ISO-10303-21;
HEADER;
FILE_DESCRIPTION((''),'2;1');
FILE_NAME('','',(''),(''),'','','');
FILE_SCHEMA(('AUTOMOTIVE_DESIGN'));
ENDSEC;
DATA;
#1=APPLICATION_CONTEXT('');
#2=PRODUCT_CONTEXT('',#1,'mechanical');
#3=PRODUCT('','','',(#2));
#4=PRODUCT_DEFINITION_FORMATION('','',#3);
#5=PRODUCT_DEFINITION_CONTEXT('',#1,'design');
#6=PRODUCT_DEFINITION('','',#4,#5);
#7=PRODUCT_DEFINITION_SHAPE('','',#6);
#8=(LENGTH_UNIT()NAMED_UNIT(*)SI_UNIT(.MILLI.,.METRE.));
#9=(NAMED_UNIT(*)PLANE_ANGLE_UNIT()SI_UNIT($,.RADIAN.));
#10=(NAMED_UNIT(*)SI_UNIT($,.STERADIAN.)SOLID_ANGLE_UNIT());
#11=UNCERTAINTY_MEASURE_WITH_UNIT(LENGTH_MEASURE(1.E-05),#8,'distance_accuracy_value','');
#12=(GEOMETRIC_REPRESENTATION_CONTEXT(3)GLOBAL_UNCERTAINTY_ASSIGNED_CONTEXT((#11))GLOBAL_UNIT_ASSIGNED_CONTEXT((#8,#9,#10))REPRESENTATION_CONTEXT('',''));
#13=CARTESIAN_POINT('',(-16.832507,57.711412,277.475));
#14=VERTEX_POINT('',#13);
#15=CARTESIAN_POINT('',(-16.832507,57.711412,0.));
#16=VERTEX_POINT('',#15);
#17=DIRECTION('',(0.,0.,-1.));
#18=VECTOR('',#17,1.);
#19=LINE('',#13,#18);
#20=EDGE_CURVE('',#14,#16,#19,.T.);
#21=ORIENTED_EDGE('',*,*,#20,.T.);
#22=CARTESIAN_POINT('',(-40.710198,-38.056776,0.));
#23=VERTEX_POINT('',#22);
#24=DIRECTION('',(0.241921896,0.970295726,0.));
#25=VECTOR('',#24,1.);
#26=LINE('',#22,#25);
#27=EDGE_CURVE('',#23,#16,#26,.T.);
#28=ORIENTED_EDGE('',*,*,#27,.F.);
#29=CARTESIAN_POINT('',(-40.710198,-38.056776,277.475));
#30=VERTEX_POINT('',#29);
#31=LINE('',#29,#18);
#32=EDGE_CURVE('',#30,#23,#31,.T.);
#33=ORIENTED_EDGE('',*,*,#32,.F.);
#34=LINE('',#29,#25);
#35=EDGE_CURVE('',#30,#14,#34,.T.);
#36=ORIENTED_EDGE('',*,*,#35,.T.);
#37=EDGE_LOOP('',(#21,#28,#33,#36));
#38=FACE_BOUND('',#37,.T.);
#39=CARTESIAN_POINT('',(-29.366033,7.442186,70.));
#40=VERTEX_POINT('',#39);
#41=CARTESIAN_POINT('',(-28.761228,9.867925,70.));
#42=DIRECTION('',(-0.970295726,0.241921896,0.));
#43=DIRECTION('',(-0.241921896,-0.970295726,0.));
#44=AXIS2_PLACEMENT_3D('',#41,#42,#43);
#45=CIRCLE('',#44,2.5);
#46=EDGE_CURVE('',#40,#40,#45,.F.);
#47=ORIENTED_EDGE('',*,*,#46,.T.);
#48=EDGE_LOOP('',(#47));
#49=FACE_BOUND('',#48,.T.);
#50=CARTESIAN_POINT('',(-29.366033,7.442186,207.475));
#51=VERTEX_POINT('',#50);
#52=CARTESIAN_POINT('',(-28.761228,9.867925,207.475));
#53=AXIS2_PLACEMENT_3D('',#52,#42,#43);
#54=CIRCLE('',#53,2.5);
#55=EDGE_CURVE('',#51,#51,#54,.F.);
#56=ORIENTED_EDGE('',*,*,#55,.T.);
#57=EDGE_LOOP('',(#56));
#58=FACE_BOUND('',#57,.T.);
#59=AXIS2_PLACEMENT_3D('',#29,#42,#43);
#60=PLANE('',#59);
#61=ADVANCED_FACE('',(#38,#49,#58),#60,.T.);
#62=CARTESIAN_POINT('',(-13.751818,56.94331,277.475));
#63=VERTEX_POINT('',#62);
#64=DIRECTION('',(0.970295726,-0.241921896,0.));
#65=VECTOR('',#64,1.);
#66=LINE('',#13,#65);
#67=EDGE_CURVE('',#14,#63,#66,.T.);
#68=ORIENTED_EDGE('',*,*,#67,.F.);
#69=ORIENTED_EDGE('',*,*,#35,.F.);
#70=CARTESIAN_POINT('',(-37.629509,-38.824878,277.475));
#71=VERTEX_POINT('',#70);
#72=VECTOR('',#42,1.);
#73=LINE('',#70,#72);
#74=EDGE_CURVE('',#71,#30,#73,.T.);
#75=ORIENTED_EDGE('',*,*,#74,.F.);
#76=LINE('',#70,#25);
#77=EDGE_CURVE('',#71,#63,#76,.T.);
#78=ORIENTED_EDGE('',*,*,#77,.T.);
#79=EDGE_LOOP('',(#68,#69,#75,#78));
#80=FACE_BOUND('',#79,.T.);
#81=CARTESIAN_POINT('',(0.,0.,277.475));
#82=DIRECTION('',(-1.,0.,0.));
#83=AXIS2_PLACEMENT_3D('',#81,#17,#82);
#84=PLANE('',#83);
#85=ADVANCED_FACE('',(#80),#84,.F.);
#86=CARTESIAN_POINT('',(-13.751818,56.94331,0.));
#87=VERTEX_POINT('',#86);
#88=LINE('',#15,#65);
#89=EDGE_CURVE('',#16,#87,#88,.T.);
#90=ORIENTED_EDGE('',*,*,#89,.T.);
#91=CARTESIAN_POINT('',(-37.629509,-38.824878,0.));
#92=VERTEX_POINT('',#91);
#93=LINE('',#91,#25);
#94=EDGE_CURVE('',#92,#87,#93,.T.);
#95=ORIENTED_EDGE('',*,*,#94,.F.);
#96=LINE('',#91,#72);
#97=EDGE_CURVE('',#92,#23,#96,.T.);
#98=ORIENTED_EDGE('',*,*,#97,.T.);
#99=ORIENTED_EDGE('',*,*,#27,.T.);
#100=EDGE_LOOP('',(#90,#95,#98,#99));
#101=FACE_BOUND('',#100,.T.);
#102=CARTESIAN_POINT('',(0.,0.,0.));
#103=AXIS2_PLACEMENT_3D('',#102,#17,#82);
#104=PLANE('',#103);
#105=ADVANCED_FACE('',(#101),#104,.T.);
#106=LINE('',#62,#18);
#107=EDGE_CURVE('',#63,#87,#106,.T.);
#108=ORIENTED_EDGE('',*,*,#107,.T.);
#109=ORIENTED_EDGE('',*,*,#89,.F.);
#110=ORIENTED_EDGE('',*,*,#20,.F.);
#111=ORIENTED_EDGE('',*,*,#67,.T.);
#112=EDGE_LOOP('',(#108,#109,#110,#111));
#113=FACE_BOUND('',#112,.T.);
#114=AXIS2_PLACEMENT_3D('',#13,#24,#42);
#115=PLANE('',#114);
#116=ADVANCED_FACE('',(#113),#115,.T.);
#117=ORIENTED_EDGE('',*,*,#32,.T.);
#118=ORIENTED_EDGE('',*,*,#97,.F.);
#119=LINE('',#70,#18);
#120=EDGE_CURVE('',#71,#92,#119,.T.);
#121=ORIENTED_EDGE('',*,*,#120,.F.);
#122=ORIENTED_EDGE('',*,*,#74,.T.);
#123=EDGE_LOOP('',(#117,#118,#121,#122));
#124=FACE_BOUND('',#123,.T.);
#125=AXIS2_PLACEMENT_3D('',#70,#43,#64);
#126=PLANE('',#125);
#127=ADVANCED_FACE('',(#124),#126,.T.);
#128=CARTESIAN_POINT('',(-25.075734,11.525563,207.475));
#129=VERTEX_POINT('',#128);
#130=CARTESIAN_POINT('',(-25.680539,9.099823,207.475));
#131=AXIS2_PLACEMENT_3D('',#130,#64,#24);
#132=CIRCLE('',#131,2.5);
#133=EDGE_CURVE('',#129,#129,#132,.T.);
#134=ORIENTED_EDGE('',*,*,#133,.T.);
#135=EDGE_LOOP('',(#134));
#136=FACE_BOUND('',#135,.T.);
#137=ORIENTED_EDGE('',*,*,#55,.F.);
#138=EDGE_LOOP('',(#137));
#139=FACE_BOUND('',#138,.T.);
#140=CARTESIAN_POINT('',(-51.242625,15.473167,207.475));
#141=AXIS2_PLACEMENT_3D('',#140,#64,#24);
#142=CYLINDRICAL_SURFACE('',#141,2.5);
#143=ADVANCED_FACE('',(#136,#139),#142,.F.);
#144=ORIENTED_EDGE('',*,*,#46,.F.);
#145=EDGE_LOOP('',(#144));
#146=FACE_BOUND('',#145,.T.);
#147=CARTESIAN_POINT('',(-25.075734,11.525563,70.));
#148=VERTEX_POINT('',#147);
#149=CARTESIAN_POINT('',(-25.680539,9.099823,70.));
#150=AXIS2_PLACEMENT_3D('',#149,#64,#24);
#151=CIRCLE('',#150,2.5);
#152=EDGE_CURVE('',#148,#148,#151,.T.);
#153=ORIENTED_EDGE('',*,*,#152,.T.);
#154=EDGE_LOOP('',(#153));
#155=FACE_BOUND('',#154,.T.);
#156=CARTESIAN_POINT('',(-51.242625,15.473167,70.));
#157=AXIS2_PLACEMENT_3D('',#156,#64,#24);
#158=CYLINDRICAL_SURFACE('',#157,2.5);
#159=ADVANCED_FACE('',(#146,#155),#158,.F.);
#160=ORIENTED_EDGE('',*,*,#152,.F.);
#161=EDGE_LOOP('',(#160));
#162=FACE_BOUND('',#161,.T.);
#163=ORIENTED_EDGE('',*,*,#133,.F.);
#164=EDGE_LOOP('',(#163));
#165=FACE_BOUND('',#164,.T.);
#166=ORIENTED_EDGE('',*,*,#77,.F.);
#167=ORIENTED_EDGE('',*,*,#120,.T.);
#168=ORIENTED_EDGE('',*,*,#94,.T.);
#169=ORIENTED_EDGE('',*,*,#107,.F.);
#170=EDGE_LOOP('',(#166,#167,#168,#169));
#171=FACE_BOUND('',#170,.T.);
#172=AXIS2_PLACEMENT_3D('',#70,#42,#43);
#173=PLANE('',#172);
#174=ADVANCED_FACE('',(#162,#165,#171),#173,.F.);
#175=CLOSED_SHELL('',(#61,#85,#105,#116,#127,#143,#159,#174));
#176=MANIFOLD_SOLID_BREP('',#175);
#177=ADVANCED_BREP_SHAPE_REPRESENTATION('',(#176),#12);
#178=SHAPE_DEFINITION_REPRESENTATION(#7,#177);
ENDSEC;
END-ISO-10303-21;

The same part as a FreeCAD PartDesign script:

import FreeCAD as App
import Part
import Sketcher
from FreeCAD import Vector
Q = App.Units.Quantity


def add_polygon(sketch, points):
    """Adds a closed chain of lines whose ends are joined by coincident constraints."""
    first, n = sketch.GeometryCount, len(points)
    for a, b in zip(points, points[1:] + points[:1]):
        sketch.addGeometry(Part.LineSegment(App.Vector(*a, 0), App.Vector(*b, 0)), False)
    for i in range(n):
        sketch.addConstraint(Sketcher.Constraint("Coincident", first + i, 2, first + (i + 1) % n, 1))

doc = App.newDocument("Part")
body = doc.addObject("PartDesign::Body", "Body")

# Sketch on XY plane
sketch1 = doc.addObject("Sketcher::SketchObject", "Sketch")
body.addObject(sketch1)
sketch1.AttachmentSupport = (doc.XY_Plane, [""])
sketch1.MapMode = "FlatFace"
add_polygon(sketch1, [(-37.6, -38.8), (-13.8, 56.9), (-16.8, 57.7), (-40.7, -38.1)])  # lines 0-3
sketch1.addConstraint([
    Sketcher.Constraint("Perpendicular", 0, 1),
    Sketcher.Constraint("Perpendicular", 1, 2),
    Sketcher.Constraint("Perpendicular", 2, 3),
    Sketcher.Constraint("Angle", 0, Q("76 deg")),
    Sketcher.Constraint("Distance", 0, 98.7),
    Sketcher.Constraint("Distance", 1, 3.175),
    Sketcher.Constraint("DistanceY", -1, 1, 0, 2, 56.94331),
    Sketcher.Constraint("DistanceX", 3, 2, -1, 1, 37.629509),
])
pad1 = doc.addObject("PartDesign::Pad", "Pad")
body.addObject(pad1)
pad1.Profile = sketch1
pad1.Length = 277.475

# Sketch on an angled plane
sketch2 = doc.addObject("Sketcher::SketchObject", "Sketch001")
body.addObject(sketch2)
sketch2.Placement = App.Placement(Vector(-26.313609, 6.560719, 0), App.Rotation(Vector(0, 0, -1), Vector(0.241921896, 0.970295726, 0), Vector(0.970295726, -0.241921896, 0), "ZXY"))
sketch2.addGeometry(Part.Circle(Vector(-207.5, 2.6, 0), Vector(0, 0, 1), 2.5), False)
sketch2.addConstraint([
    Sketcher.Constraint("Diameter", 0, 5.0),
    Sketcher.Constraint("DistanceX", 0, 3, -1, 1, 207.475),
    Sketcher.Constraint("DistanceY", -1, 1, 0, 3, 2.616835),
])
pocket1 = doc.addObject("PartDesign::Pocket", "Pocket")
body.addObject(pocket1)
pocket1.Profile = sketch2
pocket1.Type = "UpToFirst"

# Sketch on an angled plane
sketch3 = doc.addObject("Sketcher::SketchObject", "Sketch002")
body.addObject(sketch3)
sketch3.Placement = App.Placement(Vector(-26.313609, 6.560719, 0), App.Rotation(Vector(0, 0, -1), Vector(0.241921896, 0.970295726, 0), Vector(0.970295726, -0.241921896, 0), "ZXY"))
sketch3.addGeometry(Part.Circle(Vector(-70, 2.6, 0), Vector(0, 0, 1), 2.5), False)
sketch3.addConstraint([
    Sketcher.Constraint("Diameter", 0, 5.0),
    Sketcher.Constraint("DistanceX", 0, 3, -1, 1, 70.0),
    Sketcher.Constraint("DistanceY", -1, 1, 0, 3, 2.616835),
])
pocket2 = doc.addObject("PartDesign::Pocket", "Pocket001")
body.addObject(pocket2)
pocket2.Profile = sketch3
pocket2.Type = "UpToFirst"

doc.recompute()
